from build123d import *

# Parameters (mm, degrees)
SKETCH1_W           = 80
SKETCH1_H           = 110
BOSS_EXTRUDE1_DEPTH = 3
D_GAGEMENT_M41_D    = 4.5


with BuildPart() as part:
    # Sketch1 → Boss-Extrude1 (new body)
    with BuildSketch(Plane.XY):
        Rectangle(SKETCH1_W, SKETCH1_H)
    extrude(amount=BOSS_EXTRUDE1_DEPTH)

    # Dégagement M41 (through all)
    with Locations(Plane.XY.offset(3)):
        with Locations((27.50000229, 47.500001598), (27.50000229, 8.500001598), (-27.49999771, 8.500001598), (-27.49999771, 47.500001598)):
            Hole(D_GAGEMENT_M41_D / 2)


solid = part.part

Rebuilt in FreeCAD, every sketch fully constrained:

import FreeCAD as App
import Part
import Sketcher

V = App.Vector


def add_polygon(sketch, points):
    """Adds a closed chain of lines whose ends are joined by coincident constraints."""
    first, n = sketch.GeometryCount, len(points)
    for a, b in zip(points, points[1:] + points[:1]):
        sketch.addGeometry(Part.LineSegment(App.Vector(*a, 0), App.Vector(*b, 0)), False)
    for i in range(n):
        sketch.addConstraint(Sketcher.Constraint("Coincident", first + i, 2, first + (i + 1) % n, 1))

doc = App.newDocument("Part")
params = doc.addObject("Spreadsheet::Sheet", "Params")
for row, (alias, value) in enumerate([
    ("sketch1_width", "80 mm"),
    ("sketch1_height", "110 mm"),
    ("pad1_length", "3 mm"),
    ("sketch2_diameter", "4.5 mm"),
    ("hole_diameter", "4.5 mm"),
], start=1):
    params.set(f"A{row}", alias)
    params.set(f"B{row}", "=" + value)
    params.setAlias(f"B{row}", alias)

body = doc.addObject("PartDesign::Body", "Body")

sketch1 = body.newObject("Sketcher::SketchObject", "Sketch")
sketch1.AttachmentSupport = (doc.getObject("XY_Plane"), [""])
sketch1.MapMode = "FlatFace"
add_polygon(sketch1, [(-40, 55), (-40, -55), (40, -55), (40, 55)])
sketch1.addConstraint([
    Sketcher.Constraint("Vertical", 0),
    Sketcher.Constraint("Horizontal", 1),
    Sketcher.Constraint("Vertical", 2),
    Sketcher.Constraint("Horizontal", 3),
    Sketcher.Constraint("Symmetric", 0, 2, 2, 2, -1, 1),
    Sketcher.Constraint("DistanceX", 1, 1, 1, 2, 80.0),
    Sketcher.Constraint("DistanceY", 0, 2, 0, 1, 110.0),
])
sketch1.setExpression("Constraints[9]", "Params.sketch1_width")
sketch1.setExpression("Constraints[10]", "Params.sketch1_height")
pad1 = body.newObject("PartDesign::Pad", "Pad")
pad1.Profile = sketch1
pad1.setExpression("Length", "Params.pad1_length")

sketch2 = body.newObject("Sketcher::SketchObject", "Sketch001")
sketch2.AttachmentSupport = (doc.getObject("XY_Plane"), [""])
sketch2.MapMode = "FlatFace"
sketch2.AttachmentOffset = App.Placement(V(0, 0, 3), App.Rotation())
sketch2.addGeometry([
    Part.Circle(V(27.5, 47.5, 0), V(0, 0, 1), 2.2),
    Part.Circle(V(27.5, 8.5, 0), V(0, 0, 1), 2.2),
    Part.Circle(V(-27.5, 8.5, 0), V(0, 0, 1), 2.2),
    Part.Circle(V(-27.5, 47.5, 0), V(0, 0, 1), 2.2),
], False)
sketch2.addConstraint([
    Sketcher.Constraint("Equal", 0, 1),
    Sketcher.Constraint("Equal", 1, 2),
    Sketcher.Constraint("Equal", 2, 3),
    Sketcher.Constraint("Symmetric", 1, 3, 2, 3, -2),
    Sketcher.Constraint("Symmetric", 0, 3, 3, 3, -2),
    Sketcher.Constraint("Vertical", 0, 3, 1, 3),
    Sketcher.Constraint("Diameter", 0, 4.5),
    Sketcher.Constraint("DistanceY", 1, 3, 0, 3, 39.0),
    Sketcher.Constraint("DistanceX", 2, 3, 1, 3, 55.0),
    Sketcher.Constraint("DistanceY", -1, 1, 0, 3, 47.500002),
])
sketch2.setExpression("Constraints[6]", "Params.sketch2_diameter")
doc.recompute()
hole = body.newObject("PartDesign::Hole", "Hole")
hole.Profile = sketch2
hole.ThreadType = "None"
hole.setExpression("Diameter", "Params.hole_diameter")
hole.DepthType = "ThroughAll"

doc.recompute()
